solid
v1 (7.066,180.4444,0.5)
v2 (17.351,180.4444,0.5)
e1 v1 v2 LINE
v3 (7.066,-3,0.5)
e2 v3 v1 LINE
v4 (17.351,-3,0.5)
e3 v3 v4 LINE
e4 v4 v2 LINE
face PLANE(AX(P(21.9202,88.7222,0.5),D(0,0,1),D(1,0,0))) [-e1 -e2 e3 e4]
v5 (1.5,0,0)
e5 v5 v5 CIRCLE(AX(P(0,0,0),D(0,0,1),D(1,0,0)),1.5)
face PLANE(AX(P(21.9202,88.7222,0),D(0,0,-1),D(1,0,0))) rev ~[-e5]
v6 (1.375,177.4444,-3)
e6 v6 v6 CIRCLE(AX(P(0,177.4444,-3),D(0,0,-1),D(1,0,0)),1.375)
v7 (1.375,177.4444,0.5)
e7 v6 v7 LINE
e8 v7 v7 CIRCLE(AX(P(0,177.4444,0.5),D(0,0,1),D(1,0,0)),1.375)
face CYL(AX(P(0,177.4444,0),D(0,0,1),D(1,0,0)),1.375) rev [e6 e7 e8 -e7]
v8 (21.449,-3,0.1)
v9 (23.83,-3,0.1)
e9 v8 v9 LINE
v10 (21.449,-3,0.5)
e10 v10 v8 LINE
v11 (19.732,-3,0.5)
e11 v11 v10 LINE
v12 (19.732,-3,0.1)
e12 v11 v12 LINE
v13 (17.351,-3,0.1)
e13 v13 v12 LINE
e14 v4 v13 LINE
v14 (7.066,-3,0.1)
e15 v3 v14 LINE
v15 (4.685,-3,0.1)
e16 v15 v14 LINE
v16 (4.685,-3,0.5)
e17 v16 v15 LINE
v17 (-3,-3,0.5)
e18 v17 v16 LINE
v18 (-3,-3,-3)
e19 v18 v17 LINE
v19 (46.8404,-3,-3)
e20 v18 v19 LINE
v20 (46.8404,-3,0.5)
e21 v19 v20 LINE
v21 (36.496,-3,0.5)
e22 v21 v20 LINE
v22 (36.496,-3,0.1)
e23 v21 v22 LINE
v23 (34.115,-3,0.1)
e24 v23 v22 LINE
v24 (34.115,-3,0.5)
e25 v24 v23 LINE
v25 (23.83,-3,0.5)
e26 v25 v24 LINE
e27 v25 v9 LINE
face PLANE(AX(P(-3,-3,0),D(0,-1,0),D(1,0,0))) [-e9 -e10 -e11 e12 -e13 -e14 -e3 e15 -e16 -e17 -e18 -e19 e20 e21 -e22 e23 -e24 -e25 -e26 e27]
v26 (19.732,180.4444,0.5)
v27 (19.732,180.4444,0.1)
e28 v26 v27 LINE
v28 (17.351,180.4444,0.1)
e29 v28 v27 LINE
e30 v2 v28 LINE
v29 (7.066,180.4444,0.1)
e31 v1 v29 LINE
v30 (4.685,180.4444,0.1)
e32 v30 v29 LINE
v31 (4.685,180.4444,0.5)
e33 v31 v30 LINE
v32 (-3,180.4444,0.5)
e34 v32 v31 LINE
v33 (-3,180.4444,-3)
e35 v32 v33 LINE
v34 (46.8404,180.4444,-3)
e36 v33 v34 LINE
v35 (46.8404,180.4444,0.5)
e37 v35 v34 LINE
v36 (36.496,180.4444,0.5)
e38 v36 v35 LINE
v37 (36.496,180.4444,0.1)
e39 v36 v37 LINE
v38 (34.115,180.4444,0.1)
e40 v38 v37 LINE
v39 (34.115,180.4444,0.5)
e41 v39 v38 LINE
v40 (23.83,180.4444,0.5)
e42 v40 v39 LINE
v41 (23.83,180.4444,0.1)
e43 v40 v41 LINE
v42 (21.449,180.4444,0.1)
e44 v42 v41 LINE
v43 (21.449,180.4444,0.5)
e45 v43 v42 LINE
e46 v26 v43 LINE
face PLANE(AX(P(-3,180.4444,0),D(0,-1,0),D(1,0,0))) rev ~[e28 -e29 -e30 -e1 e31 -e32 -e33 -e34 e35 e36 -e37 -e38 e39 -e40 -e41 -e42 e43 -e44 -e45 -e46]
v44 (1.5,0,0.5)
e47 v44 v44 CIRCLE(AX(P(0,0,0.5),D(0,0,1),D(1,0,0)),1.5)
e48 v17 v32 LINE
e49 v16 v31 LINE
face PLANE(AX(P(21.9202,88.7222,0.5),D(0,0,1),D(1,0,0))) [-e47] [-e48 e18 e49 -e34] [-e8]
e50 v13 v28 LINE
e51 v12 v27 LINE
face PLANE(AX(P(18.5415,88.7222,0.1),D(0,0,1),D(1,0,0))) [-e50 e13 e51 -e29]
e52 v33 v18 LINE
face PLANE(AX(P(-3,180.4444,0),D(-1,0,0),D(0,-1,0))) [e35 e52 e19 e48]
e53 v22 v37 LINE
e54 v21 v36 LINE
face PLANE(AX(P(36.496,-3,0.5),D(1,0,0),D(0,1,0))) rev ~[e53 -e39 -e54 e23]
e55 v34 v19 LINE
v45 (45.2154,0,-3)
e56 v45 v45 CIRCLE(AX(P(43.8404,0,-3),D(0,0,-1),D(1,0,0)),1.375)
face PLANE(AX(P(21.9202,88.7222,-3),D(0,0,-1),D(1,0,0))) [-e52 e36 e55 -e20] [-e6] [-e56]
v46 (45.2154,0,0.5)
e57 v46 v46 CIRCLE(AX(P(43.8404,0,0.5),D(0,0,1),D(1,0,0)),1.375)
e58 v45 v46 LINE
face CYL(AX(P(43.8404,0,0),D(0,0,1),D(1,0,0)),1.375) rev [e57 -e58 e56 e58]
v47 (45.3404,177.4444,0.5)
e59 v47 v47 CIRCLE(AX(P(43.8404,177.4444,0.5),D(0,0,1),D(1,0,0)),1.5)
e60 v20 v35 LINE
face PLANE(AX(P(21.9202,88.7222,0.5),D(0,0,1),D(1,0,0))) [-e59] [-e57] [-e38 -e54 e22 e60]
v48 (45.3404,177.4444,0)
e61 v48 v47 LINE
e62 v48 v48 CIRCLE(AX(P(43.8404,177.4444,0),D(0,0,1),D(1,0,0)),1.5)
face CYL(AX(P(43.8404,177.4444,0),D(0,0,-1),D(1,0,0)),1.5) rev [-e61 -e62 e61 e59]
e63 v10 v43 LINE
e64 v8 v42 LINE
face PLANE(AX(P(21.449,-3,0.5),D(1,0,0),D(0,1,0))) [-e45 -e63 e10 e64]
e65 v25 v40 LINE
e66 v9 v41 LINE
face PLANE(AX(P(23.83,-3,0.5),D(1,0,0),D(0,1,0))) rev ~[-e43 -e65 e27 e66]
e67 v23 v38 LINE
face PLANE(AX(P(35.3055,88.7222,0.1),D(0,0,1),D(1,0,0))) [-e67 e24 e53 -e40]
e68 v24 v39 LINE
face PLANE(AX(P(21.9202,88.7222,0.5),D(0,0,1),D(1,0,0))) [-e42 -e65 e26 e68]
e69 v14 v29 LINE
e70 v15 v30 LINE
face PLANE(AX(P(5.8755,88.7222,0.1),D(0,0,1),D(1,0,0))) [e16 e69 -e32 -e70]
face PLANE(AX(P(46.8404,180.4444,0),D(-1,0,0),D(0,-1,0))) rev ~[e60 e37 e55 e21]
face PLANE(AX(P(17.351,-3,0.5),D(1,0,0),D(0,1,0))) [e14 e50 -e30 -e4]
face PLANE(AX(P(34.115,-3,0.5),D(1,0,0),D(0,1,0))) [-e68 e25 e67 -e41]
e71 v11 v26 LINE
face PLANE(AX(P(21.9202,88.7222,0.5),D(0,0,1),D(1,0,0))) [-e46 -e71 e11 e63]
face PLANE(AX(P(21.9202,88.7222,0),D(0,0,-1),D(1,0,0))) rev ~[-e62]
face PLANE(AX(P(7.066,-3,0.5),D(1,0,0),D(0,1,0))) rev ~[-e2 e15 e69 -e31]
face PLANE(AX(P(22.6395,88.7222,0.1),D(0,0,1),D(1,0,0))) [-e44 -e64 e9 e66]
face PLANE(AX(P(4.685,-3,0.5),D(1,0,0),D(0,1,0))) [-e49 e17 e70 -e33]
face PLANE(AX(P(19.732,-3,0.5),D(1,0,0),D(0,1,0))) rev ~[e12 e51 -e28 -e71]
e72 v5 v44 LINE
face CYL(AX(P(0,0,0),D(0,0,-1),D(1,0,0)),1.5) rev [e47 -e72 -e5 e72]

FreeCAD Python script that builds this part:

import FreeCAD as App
import Part
import Sketcher
from FreeCAD import Vector


def add_polygon(sketch, points):
    """Adds a closed chain of lines whose ends are joined by coincident constraints."""
    first, n = sketch.GeometryCount, len(points)
    for a, b in zip(points, points[1:] + points[:1]):
        sketch.addGeometry(Part.LineSegment(App.Vector(*a, 0), App.Vector(*b, 0)), False)
    for i in range(n):
        sketch.addConstraint(Sketcher.Constraint("Coincident", first + i, 2, first + (i + 1) % n, 1))

doc = App.newDocument("Part")
body = doc.addObject("PartDesign::Body", "Body")

# Sketch on XY plane
sketch1 = doc.addObject("Sketcher::SketchObject", "Sketch")
body.addObject(sketch1)
sketch1.AttachmentSupport = (doc.XY_Plane, [""])
sketch1.MapMode = "FlatFace"
add_polygon(sketch1, [(-3, 180.4444), (-3, -3), (46.8404, -3), (46.8404, 180.4444)])  # lines 0-3
sketch1.addGeometry(Part.Circle(Vector(0, 0, 0), Vector(0, 0, 1), 1.5), False)  # 4
sketch1.addGeometry(Part.Circle(Vector(43.8404, 0, 0), Vector(0, 0, 1), 1.375), False)  # 5
sketch1.addGeometry(Part.Circle(Vector(0, 177.4444, 0), Vector(0, 0, 1), 1.375), False)  # 6
sketch1.addGeometry(Part.Circle(Vector(43.8404, 177.4444, 0), Vector(0, 0, 1), 1.5), False)  # 7
sketch1.addConstraint([
    Sketcher.Constraint("Vertical", 0),
    Sketcher.Constraint("Horizontal", 1),
    Sketcher.Constraint("Vertical", 2),
    Sketcher.Constraint("Horizontal", 3),
    Sketcher.Constraint("Coincident", 4, 3, -1, 1),
    Sketcher.Constraint("Equal", 5, 6),
    Sketcher.Constraint("Equal", 4, 7),
    Sketcher.Constraint("PointOnObject", 5, 3, -1),
    Sketcher.Constraint("PointOnObject", 6, 3, -2),
    Sketcher.Constraint("Horizontal", 6, 3, 7, 3),
    Sketcher.Constraint("Vertical", 5, 3, 7, 3),
    Sketcher.Constraint("Diameter", 4, 3.0),
    Sketcher.Constraint("Diameter", 5, 2.75),
    Sketcher.Constraint("DistanceX", 0, 2, -1, 1, 3.0),
    Sketcher.Constraint("DistanceY", 0, 2, -1, 1, 3.0),
    Sketcher.Constraint("DistanceX", 5, 3, 1, 2, 3.0),
    Sketcher.Constraint("DistanceY", 7, 3, 2, 2, 3.0),
    Sketcher.Constraint("DistanceX", 1, 1, 1, 2, 49.8404),
    Sketcher.Constraint("DistanceY", 0, 2, 0, 1, 183.4444),
])
pad1 = doc.addObject("PartDesign::Pad", "Pad")
body.addObject(pad1)
pad1.Profile = sketch1
pad1.Length = 0.5

# Sketch on XY plane
sketch2 = doc.addObject("Sketcher::SketchObject", "Sketch001")
body.addObject(sketch2)
sketch2.AttachmentSupport = (doc.XY_Plane, [""])
sketch2.MapMode = "FlatFace"
add_polygon(sketch2, [(-3, -3), (-3, 180.4444), (46.8404, 180.4444), (46.8404, -3)])  # lines 0-3
sketch2.addGeometry(Part.Circle(Vector(0, 177.4444, 0), Vector(0, 0, 1), 1.375), False)  # 4
sketch2.addGeometry(Part.Circle(Vector(43.8404, 0, 0), Vector(0, 0, 1), 1.375), False)  # 5
sketch2.addConstraint([
    Sketcher.Constraint("Vertical", 0),
    Sketcher.Constraint("Horizontal", 1),
    Sketcher.Constraint("Vertical", 2),
    Sketcher.Constraint("Horizontal", 3),
    Sketcher.Constraint("Equal", 4, 5),
    Sketcher.Constraint("PointOnObject", 4, 3, -2),
    Sketcher.Constraint("PointOnObject", 5, 3, -1),
    Sketcher.Constraint("Diameter", 4, 2.75),
    Sketcher.Constraint("DistanceX", 0, 2, -1, 1, 3.0),
    Sketcher.Constraint("DistanceY", 2, 2, -1, 1, 3.0),
    Sketcher.Constraint("DistanceY", 4, 3, 0, 2, 3.0),
    Sketcher.Constraint("DistanceX", 5, 3, 1, 2, 3.0),
    Sketcher.Constraint("DistanceX", 1, 1, 1, 2, 49.8404),
    Sketcher.Constraint("DistanceY", 0, 1, 0, 2, 183.4444),
])
pad2 = doc.addObject("PartDesign::Pad", "Pad001")
body.addObject(pad2)
pad2.Profile = sketch2
pad2.Length = 3
pad2.Reversed = True

# Sketch on XY plane
sketch3 = doc.addObject("Sketcher::SketchObject", "Sketch002")
body.addObject(sketch3)
sketch3.AttachmentSupport = (doc.XY_Plane, [""])
sketch3.MapMode = "FlatFace"
sketch3.AttachmentOffset = App.Placement(Vector(0, 0, 0.5), App.Rotation())
add_polygon(sketch3, [(4.685, 180.4444), (4.685, -3), (7.066, -3), (7.066, 180.4444)])  # lines 0-3
add_polygon(sketch3, [(17.351, 180.4444), (17.351, -3), (19.732, -3), (19.732, 180.4444)])  # lines 4-7
add_polygon(sketch3, [(21.449, 180.4444), (21.449, -3), (23.83, -3), (23.83, 180.4444)])  # lines 8-11
add_polygon(sketch3, [(34.115, 180.4444), (34.115, -3), (36.496, -3), (36.496, 180.4444)])  # lines 12-15
sketch3.addConstraint([
    Sketcher.Constraint("Vertical", 0),
    Sketcher.Constraint("Horizontal", 1),
    Sketcher.Constraint("Vertical", 2),
    Sketcher.Constraint("Horizontal", 3),
    Sketcher.Constraint("Vertical", 4),
    Sketcher.Constraint("Horizontal", 5),
    Sketcher.Constraint("Vertical", 6),
    Sketcher.Constraint("Horizontal", 7),
    Sketcher.Constraint("Vertical", 8),
    Sketcher.Constraint("Horizontal", 9),
    Sketcher.Constraint("Vertical", 10),
    Sketcher.Constraint("Horizontal", 11),
    Sketcher.Constraint("Vertical", 12),
    Sketcher.Constraint("Horizontal", 13),
    Sketcher.Constraint("Vertical", 14),
    Sketcher.Constraint("Horizontal", 15),
    Sketcher.Constraint("Horizontal", 1, 2, 4, 2),
    Sketcher.Constraint("Horizontal", 3, 2, 6, 2),
    Sketcher.Constraint("Horizontal", 5, 2, 8, 2),
    Sketcher.Constraint("Horizontal", 7, 2, 10, 2),
    Sketcher.Constraint("Horizontal", 9, 2, 12, 2),
    Sketcher.Constraint("Horizontal", 11, 2, 14, 2),
    Sketcher.Constraint("Equal", 3, 5),
    Sketcher.Constraint("Equal", 7, 9),
    Sketcher.Constraint("Equal", 11, 13),
    Sketcher.Constraint("DistanceY", 0, 2, -1, 1, 3.0),
    Sketcher.Constraint("DistanceX", 1, 1, 1, 2, 2.381),
    Sketcher.Constraint("DistanceX", -1, 1, 9, 2, 23.83),
    Sketcher.Constraint("DistanceX", 2, 2, 14, 2, 29.43),
    Sketcher.Constraint("DistanceY", 0, 2, 0, 1, 183.4444),
    Sketcher.Constraint("DistanceX", -1, 1, 0, 2, 4.685),
    Sketcher.Constraint("DistanceX", -1, 1, 4, 2, 17.351),
])
pocket1 = doc.addObject("PartDesign::Pocket", "Pocket")
body.addObject(pocket1)
pocket1.Profile = sketch3
pocket1.Length = 0.4

doc.recompute()
